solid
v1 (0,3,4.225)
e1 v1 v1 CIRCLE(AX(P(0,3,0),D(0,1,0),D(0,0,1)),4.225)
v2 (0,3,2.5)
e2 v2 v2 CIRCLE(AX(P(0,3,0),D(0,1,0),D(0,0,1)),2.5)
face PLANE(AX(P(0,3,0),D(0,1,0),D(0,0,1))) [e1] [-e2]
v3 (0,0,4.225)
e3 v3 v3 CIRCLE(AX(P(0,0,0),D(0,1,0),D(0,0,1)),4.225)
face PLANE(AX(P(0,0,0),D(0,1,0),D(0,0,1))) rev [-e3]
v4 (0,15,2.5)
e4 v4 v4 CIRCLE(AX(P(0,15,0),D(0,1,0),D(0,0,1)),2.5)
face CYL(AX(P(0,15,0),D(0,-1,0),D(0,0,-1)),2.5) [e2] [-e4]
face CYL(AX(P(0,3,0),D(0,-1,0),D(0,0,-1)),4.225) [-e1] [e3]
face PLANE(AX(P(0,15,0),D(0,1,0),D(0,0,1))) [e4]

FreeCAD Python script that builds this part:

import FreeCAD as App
import Part
import Sketcher
from FreeCAD import Vector

doc = App.newDocument("Part")
body = doc.addObject("PartDesign::Body", "Body")

sketch1 = body.newObject("Sketcher::SketchObject", "Sketch")
sketch1.AttachmentSupport = (doc.getObject("XZ_Plane"), [""])
sketch1.MapMode = "FlatFace"
sketch1.addGeometry([
    Part.Circle(Vector(0, 0, 0), Vector(0, 0, 1), 4.225),
    Part.Circle(Vector(0, 0, 0), Vector(0, 0, 1), 2.5),
], False)
sketch1.addConstraint([
    Sketcher.Constraint("Coincident", 0, 3, -1, 1),
    Sketcher.Constraint("Coincident", 1, 3, -1, 1),
    Sketcher.Constraint("Diameter", 1, 5.0),
    Sketcher.Constraint("Diameter", 0, 8.45),
])
pad1 = body.newObject("PartDesign::Pad", "Pad")
pad1.Profile = sketch1
pad1.Length = 3
pad1.Reversed = True

sketch2 = body.newObject("Sketcher::SketchObject", "Sketch001")
sketch2.AttachmentSupport = (doc.getObject("XZ_Plane"), [""])
sketch2.MapMode = "FlatFace"
sketch2.addGeometry(Part.Circle(Vector(0, 0, 0), Vector(0, 0, 1), 2.5), False)
sketch2.addConstraint([
    Sketcher.Constraint("Coincident", 0, 3, -1, 1),
    Sketcher.Constraint("Diameter", 0, 5.0),
])
pad2 = body.newObject("PartDesign::Pad", "Pad001")
pad2.Profile = sketch2
pad2.Length = 15
pad2.Reversed = True

doc.recompute()
